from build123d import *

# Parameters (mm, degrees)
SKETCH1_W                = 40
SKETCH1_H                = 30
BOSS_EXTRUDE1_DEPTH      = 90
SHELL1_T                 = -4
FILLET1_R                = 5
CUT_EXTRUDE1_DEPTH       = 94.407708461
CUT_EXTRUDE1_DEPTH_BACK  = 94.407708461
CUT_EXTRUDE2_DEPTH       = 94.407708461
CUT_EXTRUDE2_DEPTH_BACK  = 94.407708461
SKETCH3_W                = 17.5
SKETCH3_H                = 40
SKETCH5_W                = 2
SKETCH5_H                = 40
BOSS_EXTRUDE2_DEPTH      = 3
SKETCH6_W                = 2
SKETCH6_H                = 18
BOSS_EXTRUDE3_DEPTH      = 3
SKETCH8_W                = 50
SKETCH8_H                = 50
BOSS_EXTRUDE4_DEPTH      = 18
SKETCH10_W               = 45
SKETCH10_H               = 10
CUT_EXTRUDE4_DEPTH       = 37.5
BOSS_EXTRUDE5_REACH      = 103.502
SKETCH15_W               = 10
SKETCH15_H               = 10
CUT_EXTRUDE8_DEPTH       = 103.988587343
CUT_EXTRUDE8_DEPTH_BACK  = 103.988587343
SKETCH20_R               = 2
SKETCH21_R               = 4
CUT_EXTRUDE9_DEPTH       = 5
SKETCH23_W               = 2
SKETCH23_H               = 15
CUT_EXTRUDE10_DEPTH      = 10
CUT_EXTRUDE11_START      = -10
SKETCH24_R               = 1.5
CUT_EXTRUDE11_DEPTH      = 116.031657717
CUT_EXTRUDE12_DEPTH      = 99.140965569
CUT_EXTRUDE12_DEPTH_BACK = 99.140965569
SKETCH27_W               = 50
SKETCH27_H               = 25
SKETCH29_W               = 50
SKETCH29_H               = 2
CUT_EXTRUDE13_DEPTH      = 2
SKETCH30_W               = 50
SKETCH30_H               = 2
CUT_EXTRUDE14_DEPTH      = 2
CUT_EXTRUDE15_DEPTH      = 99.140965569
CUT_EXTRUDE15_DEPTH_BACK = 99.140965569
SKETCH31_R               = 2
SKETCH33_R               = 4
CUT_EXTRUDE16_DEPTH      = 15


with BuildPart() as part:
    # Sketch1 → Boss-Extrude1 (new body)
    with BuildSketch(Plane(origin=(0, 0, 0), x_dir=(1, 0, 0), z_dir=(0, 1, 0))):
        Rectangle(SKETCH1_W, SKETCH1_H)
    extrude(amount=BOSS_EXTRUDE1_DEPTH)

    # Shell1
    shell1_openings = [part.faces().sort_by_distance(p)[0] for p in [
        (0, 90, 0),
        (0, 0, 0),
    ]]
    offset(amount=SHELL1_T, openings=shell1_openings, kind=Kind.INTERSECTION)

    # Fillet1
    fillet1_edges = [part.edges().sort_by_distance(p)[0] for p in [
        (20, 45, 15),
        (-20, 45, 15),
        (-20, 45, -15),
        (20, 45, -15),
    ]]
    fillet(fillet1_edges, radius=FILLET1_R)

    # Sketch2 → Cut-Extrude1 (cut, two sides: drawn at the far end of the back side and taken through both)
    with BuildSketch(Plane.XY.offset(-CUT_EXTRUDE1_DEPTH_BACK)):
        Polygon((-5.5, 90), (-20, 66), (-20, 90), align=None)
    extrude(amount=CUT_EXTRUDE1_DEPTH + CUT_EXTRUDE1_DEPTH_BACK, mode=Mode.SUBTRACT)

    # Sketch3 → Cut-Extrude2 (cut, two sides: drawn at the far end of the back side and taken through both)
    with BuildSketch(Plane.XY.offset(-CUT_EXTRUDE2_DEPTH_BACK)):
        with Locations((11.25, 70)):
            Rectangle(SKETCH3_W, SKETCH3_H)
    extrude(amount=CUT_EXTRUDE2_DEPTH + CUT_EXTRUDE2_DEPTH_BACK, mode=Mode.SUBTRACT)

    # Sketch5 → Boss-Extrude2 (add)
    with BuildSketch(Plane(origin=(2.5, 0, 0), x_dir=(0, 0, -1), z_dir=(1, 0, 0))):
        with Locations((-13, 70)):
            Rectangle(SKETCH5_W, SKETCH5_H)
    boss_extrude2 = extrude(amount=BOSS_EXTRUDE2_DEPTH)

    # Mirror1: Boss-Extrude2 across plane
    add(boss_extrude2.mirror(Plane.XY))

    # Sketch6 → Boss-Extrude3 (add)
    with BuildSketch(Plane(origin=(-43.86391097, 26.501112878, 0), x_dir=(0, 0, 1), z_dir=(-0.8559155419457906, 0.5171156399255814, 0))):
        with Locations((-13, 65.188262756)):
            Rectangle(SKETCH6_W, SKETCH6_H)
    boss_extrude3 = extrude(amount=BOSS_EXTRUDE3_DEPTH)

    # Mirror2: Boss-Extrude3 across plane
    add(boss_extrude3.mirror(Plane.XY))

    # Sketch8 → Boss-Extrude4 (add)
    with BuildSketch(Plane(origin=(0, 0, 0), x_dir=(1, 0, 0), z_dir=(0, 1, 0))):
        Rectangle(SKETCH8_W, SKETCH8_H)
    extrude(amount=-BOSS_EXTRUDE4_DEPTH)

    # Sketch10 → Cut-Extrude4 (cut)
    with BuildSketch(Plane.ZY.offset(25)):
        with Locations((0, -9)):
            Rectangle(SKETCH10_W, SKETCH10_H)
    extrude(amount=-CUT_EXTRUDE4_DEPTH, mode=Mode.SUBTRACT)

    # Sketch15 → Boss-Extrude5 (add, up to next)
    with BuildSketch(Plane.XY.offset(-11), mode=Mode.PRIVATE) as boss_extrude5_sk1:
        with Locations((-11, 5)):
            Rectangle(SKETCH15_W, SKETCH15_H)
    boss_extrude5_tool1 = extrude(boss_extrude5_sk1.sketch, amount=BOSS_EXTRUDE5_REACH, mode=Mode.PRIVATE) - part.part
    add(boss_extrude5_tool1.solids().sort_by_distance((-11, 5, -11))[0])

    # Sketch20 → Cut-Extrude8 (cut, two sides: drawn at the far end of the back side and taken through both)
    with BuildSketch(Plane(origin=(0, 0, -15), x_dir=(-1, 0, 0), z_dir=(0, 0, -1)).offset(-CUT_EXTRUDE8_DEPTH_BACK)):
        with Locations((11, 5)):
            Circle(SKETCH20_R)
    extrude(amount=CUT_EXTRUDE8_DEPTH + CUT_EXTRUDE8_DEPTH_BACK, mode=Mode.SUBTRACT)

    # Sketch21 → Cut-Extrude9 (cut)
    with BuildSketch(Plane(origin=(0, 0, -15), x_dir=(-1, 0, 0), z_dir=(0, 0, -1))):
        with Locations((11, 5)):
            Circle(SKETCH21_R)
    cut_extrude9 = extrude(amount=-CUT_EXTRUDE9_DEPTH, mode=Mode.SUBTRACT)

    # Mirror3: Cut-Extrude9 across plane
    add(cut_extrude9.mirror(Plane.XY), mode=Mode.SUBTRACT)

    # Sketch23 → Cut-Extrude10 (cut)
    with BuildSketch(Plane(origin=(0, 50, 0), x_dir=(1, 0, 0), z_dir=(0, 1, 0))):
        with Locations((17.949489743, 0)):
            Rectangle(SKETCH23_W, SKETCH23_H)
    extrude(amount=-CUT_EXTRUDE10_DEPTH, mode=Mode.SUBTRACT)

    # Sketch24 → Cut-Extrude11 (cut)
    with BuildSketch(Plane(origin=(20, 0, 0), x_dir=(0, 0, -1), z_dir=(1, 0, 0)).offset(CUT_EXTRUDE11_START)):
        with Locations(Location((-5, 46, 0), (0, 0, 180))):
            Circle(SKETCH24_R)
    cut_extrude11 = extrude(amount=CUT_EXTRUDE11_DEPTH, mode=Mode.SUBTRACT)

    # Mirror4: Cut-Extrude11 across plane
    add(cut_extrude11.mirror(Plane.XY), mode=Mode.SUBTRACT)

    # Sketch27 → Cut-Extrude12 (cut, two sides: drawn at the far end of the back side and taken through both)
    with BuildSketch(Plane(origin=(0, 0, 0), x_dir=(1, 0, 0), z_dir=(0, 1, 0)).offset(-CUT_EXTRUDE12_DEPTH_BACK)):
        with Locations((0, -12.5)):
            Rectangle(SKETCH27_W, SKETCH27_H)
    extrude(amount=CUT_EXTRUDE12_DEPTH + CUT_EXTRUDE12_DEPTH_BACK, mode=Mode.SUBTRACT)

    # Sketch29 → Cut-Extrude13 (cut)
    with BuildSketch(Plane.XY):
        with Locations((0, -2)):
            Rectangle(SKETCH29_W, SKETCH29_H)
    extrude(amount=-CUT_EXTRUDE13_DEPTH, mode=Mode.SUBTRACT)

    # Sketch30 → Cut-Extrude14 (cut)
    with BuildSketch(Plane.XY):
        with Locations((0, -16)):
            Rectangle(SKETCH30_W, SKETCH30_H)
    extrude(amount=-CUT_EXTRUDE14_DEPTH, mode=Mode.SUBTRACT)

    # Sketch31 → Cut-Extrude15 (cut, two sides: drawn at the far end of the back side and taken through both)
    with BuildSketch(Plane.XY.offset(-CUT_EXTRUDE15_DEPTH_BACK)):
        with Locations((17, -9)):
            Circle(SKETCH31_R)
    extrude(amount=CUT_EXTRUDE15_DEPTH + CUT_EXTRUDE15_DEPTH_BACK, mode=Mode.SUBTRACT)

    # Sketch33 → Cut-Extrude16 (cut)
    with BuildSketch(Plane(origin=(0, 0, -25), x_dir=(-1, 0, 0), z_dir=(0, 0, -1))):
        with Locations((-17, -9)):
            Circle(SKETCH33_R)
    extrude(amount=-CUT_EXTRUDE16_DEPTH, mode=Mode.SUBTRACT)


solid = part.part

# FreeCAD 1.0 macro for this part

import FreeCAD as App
import Part
import Sketcher
from FreeCAD import Vector


def edges_at(feature, points):
    """Names of the edges that pass closest to the given points."""
    edges = feature.Shape.Edges
    near = lambda p: min(range(len(edges)), key=lambda i: edges[i].distToShape(Part.Vertex(*p))[0])
    return sorted({f"Edge{near(p) + 1}" for p in points})


def faces_at(feature, points):
    """Names of the faces that lie closest to the given points."""
    faces = feature.Shape.Faces
    near = lambda p: min(range(len(faces)), key=lambda i: faces[i].distToShape(Part.Vertex(*p))[0])
    return sorted({f"Face{near(p) + 1}" for p in points})


def add_polygon(sketch, points):
    """Adds a closed chain of lines whose ends are joined by coincident constraints."""
    first, n = sketch.GeometryCount, len(points)
    for a, b in zip(points, points[1:] + points[:1]):
        sketch.addGeometry(Part.LineSegment(App.Vector(*a, 0), App.Vector(*b, 0)), False)
    for i in range(n):
        sketch.addConstraint(Sketcher.Constraint("Coincident", first + i, 2, first + (i + 1) % n, 1))

doc = App.newDocument("Part")
body = doc.addObject("PartDesign::Body", "Body")

# Sketch on XZ plane
sketch1 = doc.addObject("Sketcher::SketchObject", "Sketch")
body.addObject(sketch1)
sketch1.AttachmentSupport = (doc.XZ_Plane, [""])
sketch1.MapMode = "FlatFace"
add_polygon(sketch1, [(-20, -15), (-20, 15), (20, 15), (20, -15)])  # lines 0-3
sketch1.addConstraint([
    Sketcher.Constraint("Vertical", 0),
    Sketcher.Constraint("Horizontal", 1),
    Sketcher.Constraint("Vertical", 2),
    Sketcher.Constraint("Horizontal", 3),
    Sketcher.Constraint("Symmetric", 0, 2, 2, 2, -1, 1),
    Sketcher.Constraint("DistanceX", 1, 1, 1, 2, 40.0),
    Sketcher.Constraint("DistanceY", 0, 1, 0, 2, 30.0),
])
pad1 = doc.addObject("PartDesign::Pad", "Pad")
body.addObject(pad1)
pad1.Profile = sketch1
pad1.Length = 90
pad1.Reversed = True
doc.recompute()

thickness = doc.addObject("PartDesign::Thickness", "Thickness")
body.addObject(thickness)
thickness.Base = (pad1, faces_at(pad1, [(0, 90, 0), (0, 0, 0)]))
thickness.Value = 4
thickness.Reversed = True
thickness.Join = "Intersection"
doc.recompute()

fillet = doc.addObject("PartDesign::Fillet", "Fillet")
body.addObject(fillet)
fillet.Base = (thickness, edges_at(thickness, [
    (20, 45, 15),
    (-20, 45, 15),
    (-20, 45, -15),
    (20, 45, -15),
]))
fillet.Radius = 5

# Sketch on XY plane
sketch2 = doc.addObject("Sketcher::SketchObject", "Sketch001")
body.addObject(sketch2)
sketch2.AttachmentSupport = (doc.XY_Plane, [""])
sketch2.MapMode = "FlatFace"
add_polygon(sketch2, [(-20, 66), (-6, 90), (-20, 90)])  # lines 0-2
sketch2.addConstraint([
    Sketcher.Constraint("Horizontal", 1),
    Sketcher.Constraint("Vertical", 2),
    Sketcher.Constraint("DistanceY", 2, 2, 2, 1, 24.0),
    Sketcher.Constraint("DistanceX", 1, 2, 1, 1, 14.5),
    Sketcher.Constraint("DistanceY", -1, 1, 0, 2, 90.0),
    Sketcher.Constraint("DistanceX", 1, 2, -1, 1, 20.0),
])
pocket1 = doc.addObject("PartDesign::Pocket", "Pocket")
body.addObject(pocket1)
pocket1.Profile = sketch2
pocket1.Type = "ThroughAll"
pocket1.Midplane = True

# Sketch on XY plane
sketch3 = doc.addObject("Sketcher::SketchObject", "Sketch002")
body.addObject(sketch3)
sketch3.AttachmentSupport = (doc.XY_Plane, [""])
sketch3.MapMode = "FlatFace"
add_polygon(sketch3, [(2, 90), (2, 50), (20, 50), (20, 90)])  # lines 0-3
sketch3.addConstraint([
    Sketcher.Constraint("Vertical", 0),
    Sketcher.Constraint("Horizontal", 1),
    Sketcher.Constraint("Vertical", 2),
    Sketcher.Constraint("Horizontal", 3),
    Sketcher.Constraint("DistanceY", 0, 2, 0, 1, 40.0),
    Sketcher.Constraint("DistanceX", 1, 1, 1, 2, 17.5),
    Sketcher.Constraint("DistanceY", -1, 1, 0, 2, 50.0),
    Sketcher.Constraint("DistanceX", -1, 1, 1, 2, 20.0),
])
pocket2 = doc.addObject("PartDesign::Pocket", "Pocket001")
body.addObject(pocket2)
pocket2.Profile = sketch3
pocket2.Type = "ThroughAll"
pocket2.Midplane = True

# Sketch on YZ plane
sketch4 = doc.addObject("Sketcher::SketchObject", "Sketch003")
body.addObject(sketch4)
sketch4.AttachmentSupport = (doc.YZ_Plane, [""])
sketch4.MapMode = "FlatFace"
sketch4.AttachmentOffset = App.Placement(Vector(0, 0, 2.5), App.Rotation())
add_polygon(sketch4, [(90, 14), (50, 14), (50, 12), (90, 12)])  # lines 0-3
sketch4.addConstraint([
    Sketcher.Constraint("Horizontal", 0),
    Sketcher.Constraint("Vertical", 1),
    Sketcher.Constraint("Horizontal", 2),
    Sketcher.Constraint("Vertical", 3),
    Sketcher.Constraint("DistanceX", 0, 2, 0, 1, 40.0),
    Sketcher.Constraint("DistanceY", 1, 2, 1, 1, 2.0),
    Sketcher.Constraint("DistanceX", -1, 1, 0, 2, 50.0),
    Sketcher.Constraint("DistanceY", -1, 1, 0, 2, 14.0),
])
pad2 = doc.addObject("PartDesign::Pad", "Pad001")
body.addObject(pad2)
pad2.Profile = sketch4
pad2.Length = 3
doc.recompute()

mirrored = doc.addObject("PartDesign::Mirrored", "Mirrored")
body.addObject(mirrored)
mirrored.Originals = [pad2]
mirrored.MirrorPlane = (doc.XY_Plane, [""])
body.Tip = mirrored

# Sketch on an angled plane
sketch5 = doc.addObject("Sketcher::SketchObject", "Sketch004")
body.addObject(sketch5)
sketch5.Placement = App.Placement(Vector(-43.863911, 26.501113, 0), App.Rotation(Vector(0, 0, 1), Vector(0.51711564, 0.855915542, 0), Vector(-0.855915542, 0.51711564, 0), "ZXY"))
add_polygon(sketch5, [(-14, 74.2), (-14, 56.2), (-12, 56.2), (-12, 74.2)])  # lines 0-3
sketch5.addConstraint([
    Sketcher.Constraint("Vertical", 0),
    Sketcher.Constraint("Horizontal", 1),
    Sketcher.Constraint("Vertical", 2),
    Sketcher.Constraint("Horizontal", 3),
    Sketcher.Constraint("DistanceX", 1, 1, 1, 2, 2.0),
    Sketcher.Constraint("DistanceY", 0, 2, 0, 1, 18.0),
    Sketcher.Constraint("DistanceX", 0, 2, -1, 1, 14.0),
    Sketcher.Constraint("DistanceY", -1, 1, 0, 2, 56.188263),
])
pad3 = doc.addObject("PartDesign::Pad", "Pad002")
body.addObject(pad3)
pad3.Profile = sketch5
pad3.Length = 3
doc.recompute()

mirrored2 = doc.addObject("PartDesign::Mirrored", "Mirrored001")
body.addObject(mirrored2)
mirrored2.Originals = [pad3]
mirrored2.MirrorPlane = (doc.XY_Plane, [""])
body.Tip = mirrored2

# Sketch on XZ plane
sketch6 = doc.addObject("Sketcher::SketchObject", "Sketch005")
body.addObject(sketch6)
sketch6.AttachmentSupport = (doc.XZ_Plane, [""])
sketch6.MapMode = "FlatFace"
add_polygon(sketch6, [(-25, -25), (-25, 25), (25, 25), (25, -25)])  # lines 0-3
sketch6.addConstraint([
    Sketcher.Constraint("Vertical", 0),
    Sketcher.Constraint("Horizontal", 1),
    Sketcher.Constraint("Vertical", 2),
    Sketcher.Constraint("Horizontal", 3),
    Sketcher.Constraint("Symmetric", 0, 2, 2, 2, -1, 1),
    Sketcher.Constraint("Equal", 3, 0),
    Sketcher.Constraint("DistanceX", 1, 1, 1, 2, 50.0),
])
pad4 = doc.addObject("PartDesign::Pad", "Pad003")
body.addObject(pad4)
pad4.Profile = sketch6
pad4.Length = 18

# Sketch on YZ plane
sketch7 = doc.addObject("Sketcher::SketchObject", "Sketch006")
body.addObject(sketch7)
sketch7.AttachmentSupport = (doc.YZ_Plane, [""])
sketch7.MapMode = "FlatFace"
sketch7.AttachmentOffset = App.Placement(Vector(0, 0, -25), App.Rotation())
add_polygon(sketch7, [(-4, -22), (-14, -22), (-14, 22), (-4, 22)])  # lines 0-3
sketch7.addConstraint([
    Sketcher.Constraint("Horizontal", 0),
    Sketcher.Constraint("Vertical", 1),
    Sketcher.Constraint("Horizontal", 2),
    Sketcher.Constraint("Vertical", 3),
    Sketcher.Constraint("DistanceX", 0, 2, 0, 1, 10.0),
    Sketcher.Constraint("DistanceY", 1, 1, 1, 2, 45.0),
    Sketcher.Constraint("DistanceX", 0, 2, -1, 1, 14.0),
    Sketcher.Constraint("DistanceY", 0, 2, -1, 1, 22.5),
])
pocket3 = doc.addObject("PartDesign::Pocket", "Pocket002")
body.addObject(pocket3)
pocket3.Profile = sketch7
pocket3.Length = 37.5
pocket3.Reversed = True

# Sketch on XY plane
sketch8 = doc.addObject("Sketcher::SketchObject", "Sketch007")
body.addObject(sketch8)
sketch8.AttachmentSupport = (doc.XY_Plane, [""])
sketch8.MapMode = "FlatFace"
sketch8.AttachmentOffset = App.Placement(Vector(0, 0, -11), App.Rotation())
add_polygon(sketch8, [(-16, 10), (-16, 0), (-6, 0), (-6, 10)])  # lines 0-3
sketch8.addConstraint([
    Sketcher.Constraint("Vertical", 0),
    Sketcher.Constraint("Horizontal", 1),
    Sketcher.Constraint("Vertical", 2),
    Sketcher.Constraint("Horizontal", 3),
    Sketcher.Constraint("PointOnObject", 0, 2, -1),
    Sketcher.Constraint("Equal", 3, 0),
    Sketcher.Constraint("DistanceX", 1, 1, 1, 2, 10.0),
    Sketcher.Constraint("DistanceX", 0, 2, -1, 1, 16.0),
])
pad5 = doc.addObject("PartDesign::Pad", "Pad004")
body.addObject(pad5)
pad5.Profile = sketch8
pad5.Type = "UpToFirst"

# Sketch on XY plane
sketch9 = doc.addObject("Sketcher::SketchObject", "Sketch008")
body.addObject(sketch9)
sketch9.AttachmentSupport = (doc.XY_Plane, [""])
sketch9.MapMode = "FlatFace"
sketch9.AttachmentOffset = App.Placement(Vector(0, 0, -15), App.Rotation())
sketch9.addGeometry(Part.Circle(Vector(-11, 5, 0), Vector(0, 0, 1), 2), False)
sketch9.addConstraint([
    Sketcher.Constraint("Diameter", 0, 4.0),
    Sketcher.Constraint("DistanceX", 0, 3, -1, 1, 11.0),
    Sketcher.Constraint("DistanceY", -1, 1, 0, 3, 5.0),
])
pocket4 = doc.addObject("PartDesign::Pocket", "Pocket003")
body.addObject(pocket4)
pocket4.Profile = sketch9
pocket4.Type = "ThroughAll"
pocket4.Midplane = True

# Sketch on XY plane
sketch10 = doc.addObject("Sketcher::SketchObject", "Sketch009")
body.addObject(sketch10)
sketch10.AttachmentSupport = (doc.XY_Plane, [""])
sketch10.MapMode = "FlatFace"
sketch10.AttachmentOffset = App.Placement(Vector(0, 0, -15), App.Rotation())
sketch10.addGeometry(Part.Circle(Vector(-11, 5, 0), Vector(0, 0, 1), 4), False)
sketch10.addConstraint([
    Sketcher.Constraint("Diameter", 0, 8.0),
    Sketcher.Constraint("DistanceX", 0, 3, -1, 1, 11.0),
    Sketcher.Constraint("DistanceY", -1, 1, 0, 3, 5.0),
])
pocket5 = doc.addObject("PartDesign::Pocket", "Pocket004")
body.addObject(pocket5)
pocket5.Profile = sketch10
pocket5.Length = 5
pocket5.Reversed = True
doc.recompute()

mirrored3 = doc.addObject("PartDesign::Mirrored", "Mirrored002")
body.addObject(mirrored3)
mirrored3.Originals = [pocket5]
mirrored3.MirrorPlane = (doc.XY_Plane, [""])
body.Tip = mirrored3

# Sketch on XZ plane
sketch11 = doc.addObject("Sketcher::SketchObject", "Sketch010")
body.addObject(sketch11)
sketch11.AttachmentSupport = (doc.XZ_Plane, [""])
sketch11.MapMode = "FlatFace"
sketch11.AttachmentOffset = App.Placement(Vector(0, 0, -50), App.Rotation())
add_polygon(sketch11, [(16.9, -7.5), (16.9, 7.5), (18.9, 7.5), (18.9, -7.5)])  # lines 0-3
sketch11.addConstraint([
    Sketcher.Constraint("Vertical", 0),
    Sketcher.Constraint("Horizontal", 1),
    Sketcher.Constraint("Vertical", 2),
    Sketcher.Constraint("Horizontal", 3),
    Sketcher.Constraint("DistanceX", 1, 1, 1, 2, 2.0),
    Sketcher.Constraint("DistanceY", 0, 1, 0, 2, 15.0),
    Sketcher.Constraint("DistanceY", -1, 1, 0, 2, 7.5),
    Sketcher.Constraint("DistanceX", -1, 1, 0, 2, 16.94949),
])
pocket6 = doc.addObject("PartDesign::Pocket", "Pocket005")
body.addObject(pocket6)
pocket6.Profile = sketch11
pocket6.Length = 10
pocket6.Reversed = True

# Sketch on YZ plane
sketch12 = doc.addObject("Sketcher::SketchObject", "Sketch011")
body.addObject(sketch12)
sketch12.AttachmentSupport = (doc.YZ_Plane, [""])
sketch12.MapMode = "FlatFace"
sketch12.AttachmentOffset = App.Placement(Vector(0, 0, 10), App.Rotation())
sketch12.addGeometry(Part.Circle(Vector(46, 5, 0), Vector(0, 0, 1), 1.5), False)
sketch12.addConstraint([
    Sketcher.Constraint("Diameter", 0, 3.0),
    Sketcher.Constraint("DistanceX", -1, 1, 0, 3, 46.0),
    Sketcher.Constraint("DistanceY", -1, 1, 0, 3, 5.0),
])
pocket7 = doc.addObject("PartDesign::Pocket", "Pocket006")
body.addObject(pocket7)
pocket7.Profile = sketch12
pocket7.Length = 116.031658
pocket7.Reversed = True
doc.recompute()

mirrored4 = doc.addObject("PartDesign::Mirrored", "Mirrored003")
body.addObject(mirrored4)
mirrored4.Originals = [pocket7]
mirrored4.MirrorPlane = (doc.XY_Plane, [""])
body.Tip = mirrored4

# Sketch on XZ plane
sketch13 = doc.addObject("Sketcher::SketchObject", "Sketch012")
body.addObject(sketch13)
sketch13.AttachmentSupport = (doc.XZ_Plane, [""])
sketch13.MapMode = "FlatFace"
add_polygon(sketch13, [(-25, 0), (-25, 25), (25, 25), (25, 0)])  # lines 0-3
sketch13.addConstraint([
    Sketcher.Constraint("Vertical", 0),
    Sketcher.Constraint("Horizontal", 1),
    Sketcher.Constraint("Vertical", 2),
    Sketcher.Constraint("Horizontal", 3),
    Sketcher.Constraint("Symmetric", 2, 2, 3, 2, -1, 1),
    Sketcher.Constraint("DistanceX", 1, 1, 1, 2, 50.0),
    Sketcher.Constraint("DistanceY", 0, 1, 0, 2, 25.0),
])
pocket8 = doc.addObject("PartDesign::Pocket", "Pocket007")
body.addObject(pocket8)
pocket8.Profile = sketch13
pocket8.Type = "ThroughAll"
pocket8.Midplane = True

# Sketch on XY plane
sketch14 = doc.addObject("Sketcher::SketchObject", "Sketch013")
body.addObject(sketch14)
sketch14.AttachmentSupport = (doc.XY_Plane, [""])
sketch14.MapMode = "FlatFace"
add_polygon(sketch14, [(-25, -1), (-25, -3), (25, -3), (25, -1)])  # lines 0-3
sketch14.addConstraint([
    Sketcher.Constraint("Vertical", 0),
    Sketcher.Constraint("Horizontal", 1),
    Sketcher.Constraint("Vertical", 2),
    Sketcher.Constraint("Horizontal", 3),
    Sketcher.Constraint("DistanceX", 1, 1, 1, 2, 50.0),
    Sketcher.Constraint("DistanceY", 0, 2, 0, 1, 2.0),
    Sketcher.Constraint("DistanceX", 0, 2, -1, 1, 25.0),
    Sketcher.Constraint("DistanceY", 0, 2, -1, 1, 3.0),
])
pocket9 = doc.addObject("PartDesign::Pocket", "Pocket008")
body.addObject(pocket9)
pocket9.Profile = sketch14
pocket9.Length = 2

# Sketch on XY plane
sketch15 = doc.addObject("Sketcher::SketchObject", "Sketch014")
body.addObject(sketch15)
sketch15.AttachmentSupport = (doc.XY_Plane, [""])
sketch15.MapMode = "FlatFace"
add_polygon(sketch15, [(-25, -15), (-25, -17), (25, -17), (25, -15)])  # lines 0-3
sketch15.addConstraint([
    Sketcher.Constraint("Vertical", 0),
    Sketcher.Constraint("Horizontal", 1),
    Sketcher.Constraint("Vertical", 2),
    Sketcher.Constraint("Horizontal", 3),
    Sketcher.Constraint("DistanceX", 1, 1, 1, 2, 50.0),
    Sketcher.Constraint("DistanceY", 0, 2, 0, 1, 2.0),
    Sketcher.Constraint("DistanceX", 0, 2, -1, 1, 25.0),
    Sketcher.Constraint("DistanceY", 0, 2, -1, 1, 17.0),
])
pocket10 = doc.addObject("PartDesign::Pocket", "Pocket009")
body.addObject(pocket10)
pocket10.Profile = sketch15
pocket10.Length = 2

# Sketch on XY plane
sketch16 = doc.addObject("Sketcher::SketchObject", "Sketch015")
body.addObject(sketch16)
sketch16.AttachmentSupport = (doc.XY_Plane, [""])
sketch16.MapMode = "FlatFace"
sketch16.addGeometry(Part.Circle(Vector(17, -9, 0), Vector(0, 0, 1), 2), False)
sketch16.addConstraint([
    Sketcher.Constraint("Diameter", 0, 4.0),
    Sketcher.Constraint("DistanceX", -1, 1, 0, 3, 17.0),
    Sketcher.Constraint("DistanceY", 0, 3, -1, 1, 9.0),
])
pocket11 = doc.addObject("PartDesign::Pocket", "Pocket010")
body.addObject(pocket11)
pocket11.Profile = sketch16
pocket11.Type = "ThroughAll"
pocket11.Midplane = True

# Sketch on XY plane
sketch17 = doc.addObject("Sketcher::SketchObject", "Sketch016")
body.addObject(sketch17)
sketch17.AttachmentSupport = (doc.XY_Plane, [""])
sketch17.MapMode = "FlatFace"
sketch17.AttachmentOffset = App.Placement(Vector(0, 0, -25), App.Rotation())
sketch17.addGeometry(Part.Circle(Vector(17, -9, 0), Vector(0, 0, 1), 4), False)
sketch17.addConstraint([
    Sketcher.Constraint("Diameter", 0, 8.0),
    Sketcher.Constraint("DistanceX", -1, 1, 0, 3, 17.0),
    Sketcher.Constraint("DistanceY", 0, 3, -1, 1, 9.0),
])
pocket12 = doc.addObject("PartDesign::Pocket", "Pocket011")
body.addObject(pocket12)
pocket12.Profile = sketch17
pocket12.Length = 15
pocket12.Reversed = True

doc.recompute()
